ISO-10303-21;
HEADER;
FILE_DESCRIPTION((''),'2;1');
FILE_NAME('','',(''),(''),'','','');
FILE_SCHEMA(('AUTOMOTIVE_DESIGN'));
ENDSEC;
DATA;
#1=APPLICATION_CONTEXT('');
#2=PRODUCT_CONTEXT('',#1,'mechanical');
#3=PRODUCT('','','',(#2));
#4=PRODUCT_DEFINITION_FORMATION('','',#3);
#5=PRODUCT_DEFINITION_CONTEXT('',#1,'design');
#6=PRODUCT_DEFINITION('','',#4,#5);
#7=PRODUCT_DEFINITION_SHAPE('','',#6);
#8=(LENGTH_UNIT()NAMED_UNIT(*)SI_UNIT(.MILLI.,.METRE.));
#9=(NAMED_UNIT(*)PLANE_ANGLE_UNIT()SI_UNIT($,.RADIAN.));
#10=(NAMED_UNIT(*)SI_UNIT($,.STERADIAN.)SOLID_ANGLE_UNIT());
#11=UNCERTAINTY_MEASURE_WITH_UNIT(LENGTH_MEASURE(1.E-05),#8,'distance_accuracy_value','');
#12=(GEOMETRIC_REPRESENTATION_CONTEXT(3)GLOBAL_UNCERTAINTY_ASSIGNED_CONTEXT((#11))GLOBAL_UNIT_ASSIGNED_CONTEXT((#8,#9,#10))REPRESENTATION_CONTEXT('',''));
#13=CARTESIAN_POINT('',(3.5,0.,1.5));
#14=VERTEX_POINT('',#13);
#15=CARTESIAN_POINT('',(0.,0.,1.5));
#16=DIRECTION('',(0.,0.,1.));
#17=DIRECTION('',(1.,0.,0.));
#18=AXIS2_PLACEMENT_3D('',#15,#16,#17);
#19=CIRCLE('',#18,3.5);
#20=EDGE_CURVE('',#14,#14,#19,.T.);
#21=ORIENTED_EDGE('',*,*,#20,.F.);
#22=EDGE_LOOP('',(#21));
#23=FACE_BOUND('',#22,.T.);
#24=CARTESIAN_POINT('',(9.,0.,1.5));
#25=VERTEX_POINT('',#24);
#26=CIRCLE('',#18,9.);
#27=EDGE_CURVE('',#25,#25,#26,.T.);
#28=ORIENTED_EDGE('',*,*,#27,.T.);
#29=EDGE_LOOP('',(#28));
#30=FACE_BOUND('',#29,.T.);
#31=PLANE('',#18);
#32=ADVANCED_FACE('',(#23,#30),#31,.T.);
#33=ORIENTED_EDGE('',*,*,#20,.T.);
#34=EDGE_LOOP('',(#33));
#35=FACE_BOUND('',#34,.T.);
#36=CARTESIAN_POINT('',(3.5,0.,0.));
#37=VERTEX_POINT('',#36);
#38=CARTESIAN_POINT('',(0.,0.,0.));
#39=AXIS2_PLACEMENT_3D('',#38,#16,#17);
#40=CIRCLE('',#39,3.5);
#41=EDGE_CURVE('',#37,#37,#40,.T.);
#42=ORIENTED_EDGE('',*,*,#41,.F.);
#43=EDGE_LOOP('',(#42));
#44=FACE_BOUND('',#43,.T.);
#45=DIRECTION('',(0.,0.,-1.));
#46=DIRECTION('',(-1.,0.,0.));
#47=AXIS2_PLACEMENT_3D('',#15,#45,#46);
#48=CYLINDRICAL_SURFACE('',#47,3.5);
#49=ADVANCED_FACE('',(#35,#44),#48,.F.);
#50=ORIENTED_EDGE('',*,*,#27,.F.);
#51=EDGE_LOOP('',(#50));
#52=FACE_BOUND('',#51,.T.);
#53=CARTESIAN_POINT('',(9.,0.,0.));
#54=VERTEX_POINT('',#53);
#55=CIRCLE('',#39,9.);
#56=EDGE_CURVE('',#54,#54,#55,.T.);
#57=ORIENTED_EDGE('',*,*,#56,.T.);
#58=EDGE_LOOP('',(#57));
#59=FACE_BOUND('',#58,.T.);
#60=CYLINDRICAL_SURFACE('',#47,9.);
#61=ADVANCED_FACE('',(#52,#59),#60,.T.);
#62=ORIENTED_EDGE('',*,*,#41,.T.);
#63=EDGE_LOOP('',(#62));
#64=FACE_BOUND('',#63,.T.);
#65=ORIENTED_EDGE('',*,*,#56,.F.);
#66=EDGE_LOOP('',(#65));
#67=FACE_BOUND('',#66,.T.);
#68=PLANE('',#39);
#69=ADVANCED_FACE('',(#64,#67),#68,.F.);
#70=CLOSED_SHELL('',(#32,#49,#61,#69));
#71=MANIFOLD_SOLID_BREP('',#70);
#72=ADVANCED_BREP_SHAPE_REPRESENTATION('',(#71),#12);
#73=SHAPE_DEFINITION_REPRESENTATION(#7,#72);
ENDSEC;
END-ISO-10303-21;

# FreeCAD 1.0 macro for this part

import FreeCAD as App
import Part
import Sketcher

V = App.Vector
Q = App.Units.Quantity

doc = App.newDocument("Part")
body = doc.addObject("PartDesign::Body", "Body")

# Sketch on XY plane
sketch1 = body.newObject("Sketcher::SketchObject", "Sketch")
sketch1.AttachmentSupport = (doc.getObject("XY_Plane"), [""])
sketch1.MapMode = "FlatFace"
sketch1.addGeometry(Part.Circle(V(0, 0, 0), V(0, 0, 1), 9), False)
sketch1.addGeometry(Part.Circle(V(0, 0, 0), V(0, 0, 1), 3.5), False)
sketch1.addConstraint(Sketcher.Constraint("Coincident", 0, 3, -1, 1))
sketch1.addConstraint(Sketcher.Constraint("Coincident", 1, 3, -1, 1))
sketch1.addConstraint(Sketcher.Constraint("Diameter", 0, Q("18 mm")))
sketch1.addConstraint(Sketcher.Constraint("Diameter", 1, Q("7 mm")))
pad1 = body.newObject("PartDesign::Pad", "Pad")
pad1.Profile = sketch1
pad1.Length = 1.5

doc.recompute()
